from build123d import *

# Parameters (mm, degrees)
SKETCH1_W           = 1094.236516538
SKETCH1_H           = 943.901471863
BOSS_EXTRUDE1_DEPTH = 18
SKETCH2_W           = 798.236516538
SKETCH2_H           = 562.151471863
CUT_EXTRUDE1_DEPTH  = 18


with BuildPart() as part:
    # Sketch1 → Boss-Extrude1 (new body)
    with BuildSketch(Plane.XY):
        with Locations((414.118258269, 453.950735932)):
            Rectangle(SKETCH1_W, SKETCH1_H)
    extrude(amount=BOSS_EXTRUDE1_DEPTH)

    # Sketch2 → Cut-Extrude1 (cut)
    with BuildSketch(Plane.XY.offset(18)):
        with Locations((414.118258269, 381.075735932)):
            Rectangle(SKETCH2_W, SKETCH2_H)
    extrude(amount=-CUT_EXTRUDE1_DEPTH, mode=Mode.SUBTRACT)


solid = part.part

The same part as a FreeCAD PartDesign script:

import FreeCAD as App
import Part
import Sketcher

V = App.Vector

doc = App.newDocument("Part")
params = doc.addObject("Spreadsheet::Sheet", "Params")
for row, (alias, value) in enumerate([
    ("pad1_length", "18 mm"),
    ("pocket1_length", "18 mm"),
], start=1):
    params.set(f"A{row}", alias)
    params.set(f"B{row}", "=" + value)
    params.setAlias(f"B{row}", alias)

body = doc.addObject("PartDesign::Body", "Body")

sketch1 = doc.addObject("Sketcher::SketchObject", "Sketch")
body.addObject(sketch1)
sketch1.AttachmentSupport = (doc.XY_Plane, [""])
sketch1.MapMode = "FlatFace"
sketch1.addGeometry([
    Part.LineSegment(V(-133, 926, 0), V(-133, -18, 0)),
    Part.LineSegment(V(-133, -18, 0), V(961, -18, 0)),
    Part.LineSegment(V(961, -18, 0), V(961, 926, 0)),
    Part.LineSegment(V(961, 926, 0), V(-133, 926, 0)),
], False)
sketch1.addConstraint([
    Sketcher.Constraint("Coincident", 0, 2, 1, 1),
    Sketcher.Constraint("Coincident", 1, 2, 2, 1),
    Sketcher.Constraint("Coincident", 2, 2, 3, 1),
    Sketcher.Constraint("Coincident", 3, 2, 0, 1),
    Sketcher.Constraint("Vertical", 0),
    Sketcher.Constraint("Horizontal", 1),
    Sketcher.Constraint("Vertical", 2),
    Sketcher.Constraint("Horizontal", 3),
    Sketcher.Constraint("DistanceX", 0, 2, -1, 1, 133.0),
    Sketcher.Constraint("DistanceY", 0, 2, -1, 1, 18.0),
    Sketcher.Constraint("DistanceY", 0, 2, 0, 1, 943.901472),
    Sketcher.Constraint("DistanceX", 1, 1, 1, 2, 1094.236517),
])
pad1 = doc.addObject("PartDesign::Pad", "Pad")
body.addObject(pad1)
pad1.Profile = sketch1
pad1.setExpression("Length", "Params.pad1_length")

sketch2 = doc.addObject("Sketcher::SketchObject", "Sketch001")
body.addObject(sketch2)
sketch2.AttachmentSupport = (doc.XY_Plane, [""])
sketch2.MapMode = "FlatFace"
sketch2.AttachmentOffset = App.Placement(V(0, 0, 18), App.Rotation())
sketch2.addGeometry([
    Part.LineSegment(V(15, 662, 0), V(15, 100, 0)),
    Part.LineSegment(V(15, 100, 0), V(813, 100, 0)),
    Part.LineSegment(V(813, 100, 0), V(813, 662, 0)),
    Part.LineSegment(V(813, 662, 0), V(15, 662, 0)),
], False)
sketch2.addConstraint([
    Sketcher.Constraint("Coincident", 0, 2, 1, 1),
    Sketcher.Constraint("Coincident", 1, 2, 2, 1),
    Sketcher.Constraint("Coincident", 2, 2, 3, 1),
    Sketcher.Constraint("Coincident", 3, 2, 0, 1),
    Sketcher.Constraint("Vertical", 0),
    Sketcher.Constraint("Horizontal", 1),
    Sketcher.Constraint("Vertical", 2),
    Sketcher.Constraint("Horizontal", 3),
    Sketcher.Constraint("DistanceX", -1, 1, 0, 2, 15.0),
    Sketcher.Constraint("DistanceY", -1, 1, 0, 2, 100.0),
    Sketcher.Constraint("DistanceY", 0, 2, 0, 1, 562.151472),
    Sketcher.Constraint("DistanceX", 1, 1, 1, 2, 798.236517),
])
pocket1 = doc.addObject("PartDesign::Pocket", "Pocket")
body.addObject(pocket1)
pocket1.Profile = sketch2
pocket1.setExpression("Length", "Params.pocket1_length")

doc.recompute()
